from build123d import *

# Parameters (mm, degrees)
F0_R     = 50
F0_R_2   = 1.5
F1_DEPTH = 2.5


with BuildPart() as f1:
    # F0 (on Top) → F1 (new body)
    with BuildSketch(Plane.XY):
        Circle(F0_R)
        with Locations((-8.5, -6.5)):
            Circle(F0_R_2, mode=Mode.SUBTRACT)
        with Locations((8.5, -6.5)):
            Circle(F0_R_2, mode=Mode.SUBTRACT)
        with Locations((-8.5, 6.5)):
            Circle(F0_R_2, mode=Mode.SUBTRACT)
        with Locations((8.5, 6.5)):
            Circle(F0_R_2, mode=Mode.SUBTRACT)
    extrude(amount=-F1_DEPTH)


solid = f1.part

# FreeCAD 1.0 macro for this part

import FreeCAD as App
import Part
import Sketcher
from FreeCAD import Vector

doc = App.newDocument("Part")
body = doc.addObject("PartDesign::Body", "Body")

sketch1 = body.newObject("Sketcher::SketchObject", "Sketch")
sketch1.AttachmentSupport = (doc.getObject("XY_Plane"), [""])
sketch1.MapMode = "FlatFace"
sketch1.addGeometry([
    Part.Circle(Vector(0, 0, 0), Vector(0, 0, 1), 50),
    Part.Circle(Vector(-8.5, -6.5, 0), Vector(0, 0, 1), 1.5),
    Part.Circle(Vector(8.5, -6.5, 0), Vector(0, 0, 1), 1.5),
    Part.Circle(Vector(-8.5, 6.5, 0), Vector(0, 0, 1), 1.5),
    Part.Circle(Vector(8.5, 6.5, 0), Vector(0, 0, 1), 1.5),
], False)
sketch1.addConstraint([
    Sketcher.Constraint("Coincident", 0, 3, -1, 1),
    Sketcher.Constraint("Equal", 1, 2),
    Sketcher.Constraint("Equal", 2, 3),
    Sketcher.Constraint("Equal", 3, 4),
    Sketcher.Constraint("Symmetric", 2, 3, 3, 3, -1, 1),
    Sketcher.Constraint("Symmetric", 1, 3, 4, 3, -1, 1),
    Sketcher.Constraint("Symmetric", 1, 3, 2, 3, -2),
    Sketcher.Constraint("Diameter", 0, 100.0),
    Sketcher.Constraint("Diameter", 1, 3.0),
    Sketcher.Constraint("DistanceX", 1, 3, 2, 3, 17.0),
    Sketcher.Constraint("DistanceY", 1, 3, 3, 3, 13.0),
])
pad1 = body.newObject("PartDesign::Pad", "Pad")
pad1.Profile = sketch1
pad1.Length = 2.5
pad1.Reversed = True

doc.recompute()
